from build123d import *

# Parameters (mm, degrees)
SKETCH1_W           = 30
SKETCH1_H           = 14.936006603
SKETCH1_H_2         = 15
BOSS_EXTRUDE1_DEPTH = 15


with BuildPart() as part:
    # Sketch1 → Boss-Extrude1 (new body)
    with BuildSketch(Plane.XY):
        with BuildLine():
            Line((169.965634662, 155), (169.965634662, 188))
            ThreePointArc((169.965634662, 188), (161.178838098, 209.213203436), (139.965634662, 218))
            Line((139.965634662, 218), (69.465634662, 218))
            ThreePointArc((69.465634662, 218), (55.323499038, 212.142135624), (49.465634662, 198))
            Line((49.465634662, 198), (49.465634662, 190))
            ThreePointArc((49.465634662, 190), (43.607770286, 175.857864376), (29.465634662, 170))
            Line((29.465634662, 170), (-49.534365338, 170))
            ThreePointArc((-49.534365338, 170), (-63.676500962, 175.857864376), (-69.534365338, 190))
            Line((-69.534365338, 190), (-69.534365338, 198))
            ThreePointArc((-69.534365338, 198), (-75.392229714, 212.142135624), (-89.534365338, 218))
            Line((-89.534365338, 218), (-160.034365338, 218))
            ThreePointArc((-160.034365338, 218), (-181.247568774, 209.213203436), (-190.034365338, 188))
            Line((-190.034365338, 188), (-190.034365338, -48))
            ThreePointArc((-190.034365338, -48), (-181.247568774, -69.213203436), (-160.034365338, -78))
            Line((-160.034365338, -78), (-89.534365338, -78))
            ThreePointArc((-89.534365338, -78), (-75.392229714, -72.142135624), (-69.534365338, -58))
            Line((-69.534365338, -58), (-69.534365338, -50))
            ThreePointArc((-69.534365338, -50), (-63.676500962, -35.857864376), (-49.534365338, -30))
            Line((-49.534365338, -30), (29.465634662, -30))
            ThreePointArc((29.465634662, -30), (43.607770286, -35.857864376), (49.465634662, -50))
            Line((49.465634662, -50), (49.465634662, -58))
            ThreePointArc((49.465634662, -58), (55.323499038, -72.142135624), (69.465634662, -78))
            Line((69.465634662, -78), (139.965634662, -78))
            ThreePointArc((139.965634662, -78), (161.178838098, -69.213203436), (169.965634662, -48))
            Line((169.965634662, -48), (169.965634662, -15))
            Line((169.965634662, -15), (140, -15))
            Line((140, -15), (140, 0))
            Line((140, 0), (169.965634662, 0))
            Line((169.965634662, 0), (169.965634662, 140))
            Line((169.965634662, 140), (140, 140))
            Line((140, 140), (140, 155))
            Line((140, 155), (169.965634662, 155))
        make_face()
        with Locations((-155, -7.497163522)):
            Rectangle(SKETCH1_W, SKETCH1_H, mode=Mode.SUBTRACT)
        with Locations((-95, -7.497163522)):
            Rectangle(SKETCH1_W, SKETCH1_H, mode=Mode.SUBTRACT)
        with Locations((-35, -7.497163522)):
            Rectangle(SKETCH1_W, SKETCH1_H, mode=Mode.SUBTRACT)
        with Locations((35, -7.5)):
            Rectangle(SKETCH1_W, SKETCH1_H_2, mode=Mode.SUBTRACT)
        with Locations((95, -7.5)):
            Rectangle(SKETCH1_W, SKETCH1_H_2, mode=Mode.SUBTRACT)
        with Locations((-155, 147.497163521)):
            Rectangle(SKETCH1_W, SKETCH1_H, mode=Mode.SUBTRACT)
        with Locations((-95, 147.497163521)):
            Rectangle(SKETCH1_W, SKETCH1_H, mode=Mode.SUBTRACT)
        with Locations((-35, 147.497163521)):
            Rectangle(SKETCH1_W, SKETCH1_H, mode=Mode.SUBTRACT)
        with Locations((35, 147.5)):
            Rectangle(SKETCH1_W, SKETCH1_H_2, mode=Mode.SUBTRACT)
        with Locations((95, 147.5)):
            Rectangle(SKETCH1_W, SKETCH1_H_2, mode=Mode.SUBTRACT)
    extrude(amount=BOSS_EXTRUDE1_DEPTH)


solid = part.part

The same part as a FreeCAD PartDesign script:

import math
import FreeCAD as App
import Part
import Sketcher
from FreeCAD import Vector
Q = App.Units.Quantity


def add_polygon(sketch, points):
    """Adds a closed chain of lines whose ends are joined by coincident constraints."""
    first, n = sketch.GeometryCount, len(points)
    for a, b in zip(points, points[1:] + points[:1]):
        sketch.addGeometry(Part.LineSegment(App.Vector(*a, 0), App.Vector(*b, 0)), False)
    for i in range(n):
        sketch.addConstraint(Sketcher.Constraint("Coincident", first + i, 2, first + (i + 1) % n, 1))

doc = App.newDocument("Part")
body = doc.addObject("PartDesign::Body", "Body")

# Sketch on XY plane
sketch1 = body.newObject("Sketcher::SketchObject", "Sketch")
sketch1.AttachmentSupport = (doc.getObject("XY_Plane"), [""])
sketch1.MapMode = "FlatFace"
sketch1.addGeometry(Part.LineSegment(Vector(170, 155, 0), Vector(170, 188, 0)), False)  # 0
sketch1.addGeometry(Part.ArcOfCircle(Part.Circle(Vector(140, 188, 0), Vector(0, 0, 1), 30), math.radians(0), math.radians(90)), False)  # 1
sketch1.addGeometry(Part.LineSegment(Vector(140, 218, 0), Vector(69, 218, 0)), False)  # 2
sketch1.addGeometry(Part.ArcOfCircle(Part.Circle(Vector(69, 198, 0), Vector(0, 0, 1), 20), math.radians(90), math.radians(180)), False)  # 3
sketch1.addGeometry(Part.LineSegment(Vector(49, 198, 0), Vector(49, 190, 0)), False)  # 4
sketch1.addGeometry(Part.ArcOfCircle(Part.Circle(Vector(29, 190, 0), Vector(0, 0, 1), 20), math.radians(-90), math.radians(0)), False)  # 5
sketch1.addGeometry(Part.LineSegment(Vector(29, 170, 0), Vector(-50, 170, 0)), False)  # 6
sketch1.addGeometry(Part.ArcOfCircle(Part.Circle(Vector(-50, 190, 0), Vector(0, 0, 1), 20), math.radians(180), math.radians(270)), False)  # 7
sketch1.addGeometry(Part.LineSegment(Vector(-70, 190, 0), Vector(-70, 198, 0)), False)  # 8
sketch1.addGeometry(Part.ArcOfCircle(Part.Circle(Vector(-90, 198, 0), Vector(0, 0, 1), 20), math.radians(0), math.radians(90)), False)  # 9
sketch1.addGeometry(Part.LineSegment(Vector(-90, 218, 0), Vector(-160, 218, 0)), False)  # 10
sketch1.addGeometry(Part.ArcOfCircle(Part.Circle(Vector(-160, 188, 0), Vector(0, 0, 1), 30), math.radians(90), math.radians(180)), False)  # 11
sketch1.addGeometry(Part.LineSegment(Vector(-190, 188, 0), Vector(-190, -48, 0)), False)  # 12
sketch1.addGeometry(Part.ArcOfCircle(Part.Circle(Vector(-160, -48, 0), Vector(0, 0, 1), 30), math.radians(180), math.radians(270)), False)  # 13
sketch1.addGeometry(Part.LineSegment(Vector(-160, -78, 0), Vector(-90, -78, 0)), False)  # 14
sketch1.addGeometry(Part.ArcOfCircle(Part.Circle(Vector(-90, -58, 0), Vector(0, 0, 1), 20), math.radians(-90), math.radians(0)), False)  # 15
sketch1.addGeometry(Part.LineSegment(Vector(-70, -58, 0), Vector(-70, -50, 0)), False)  # 16
sketch1.addGeometry(Part.ArcOfCircle(Part.Circle(Vector(-50, -50, 0), Vector(0, 0, 1), 20), math.radians(90), math.radians(180)), False)  # 17
sketch1.addGeometry(Part.LineSegment(Vector(-50, -30, 0), Vector(29, -30, 0)), False)  # 18
sketch1.addGeometry(Part.ArcOfCircle(Part.Circle(Vector(29, -50, 0), Vector(0, 0, 1), 20), math.radians(0), math.radians(90)), False)  # 19
sketch1.addGeometry(Part.LineSegment(Vector(49, -50, 0), Vector(49, -58, 0)), False)  # 20
sketch1.addGeometry(Part.ArcOfCircle(Part.Circle(Vector(69, -58, 0), Vector(0, 0, 1), 20), math.radians(180), math.radians(270)), False)  # 21
sketch1.addGeometry(Part.LineSegment(Vector(69, -78, 0), Vector(140, -78, 0)), False)  # 22
sketch1.addGeometry(Part.ArcOfCircle(Part.Circle(Vector(140, -48, 0), Vector(0, 0, 1), 30), math.radians(-90), math.radians(0)), False)  # 23
sketch1.addGeometry(Part.LineSegment(Vector(170, -48, 0), Vector(170, -15, 0)), False)  # 24
sketch1.addGeometry(Part.LineSegment(Vector(170, -15, 0), Vector(140, -15, 0)), False)  # 25
sketch1.addGeometry(Part.LineSegment(Vector(140, -15, 0), Vector(140, 0, 0)), False)  # 26
sketch1.addGeometry(Part.LineSegment(Vector(140, 0, 0), Vector(170, 0, 0)), False)  # 27
sketch1.addGeometry(Part.LineSegment(Vector(170, 0, 0), Vector(170, 140, 0)), False)  # 28
sketch1.addGeometry(Part.LineSegment(Vector(170, 140, 0), Vector(140, 140, 0)), False)  # 29
sketch1.addGeometry(Part.LineSegment(Vector(140, 140, 0), Vector(140, 155, 0)), False)  # 30
sketch1.addGeometry(Part.LineSegment(Vector(140, 155, 0), Vector(170, 155, 0)), False)  # 31
add_polygon(sketch1, [(-140, -15), (-170, -15), (-170, 0), (-140, 0)])  # lines 32-35
add_polygon(sketch1, [(-80, -15), (-110, -15), (-110, 0), (-80, 0)])  # lines 36-39
add_polygon(sketch1, [(-20, -15), (-50, -15), (-50, 0), (-20, 0)])  # lines 40-43
add_polygon(sketch1, [(50, -15), (20, -15), (20, 0), (50, 0)])  # lines 44-47
add_polygon(sketch1, [(110, -15), (80, -15), (80, 0), (110, 0)])  # lines 48-51
add_polygon(sketch1, [(-140, 140), (-170, 140), (-170, 155), (-140, 155)])  # lines 52-55
add_polygon(sketch1, [(-80, 140), (-110, 140), (-110, 155), (-80, 155)])  # lines 56-59
add_polygon(sketch1, [(-20, 140), (-50, 140), (-50, 155), (-20, 155)])  # lines 60-63
add_polygon(sketch1, [(50, 140), (20, 140), (20, 155), (50, 155)])  # lines 64-67
add_polygon(sketch1, [(110, 140), (80, 140), (80, 155), (110, 155)])  # lines 68-71
sketch1.addConstraint(Sketcher.Constraint("Tangent", 0, 2, 1, 1))
sketch1.addConstraint(Sketcher.Constraint("Tangent", 1, 2, 2, 1))
sketch1.addConstraint(Sketcher.Constraint("Tangent", 2, 2, 3, 1))
sketch1.addConstraint(Sketcher.Constraint("Tangent", 3, 2, 4, 1))
sketch1.addConstraint(Sketcher.Constraint("Tangent", 4, 2, 5, 2))
sketch1.addConstraint(Sketcher.Constraint("Tangent", 5, 1, 6, 1))
sketch1.addConstraint(Sketcher.Constraint("Tangent", 6, 2, 7, 2))
sketch1.addConstraint(Sketcher.Constraint("Tangent", 7, 1, 8, 1))
sketch1.addConstraint(Sketcher.Constraint("Tangent", 8, 2, 9, 1))
sketch1.addConstraint(Sketcher.Constraint("Tangent", 9, 2, 10, 1))
sketch1.addConstraint(Sketcher.Constraint("Tangent", 10, 2, 11, 1))
sketch1.addConstraint(Sketcher.Constraint("Tangent", 11, 2, 12, 1))
sketch1.addConstraint(Sketcher.Constraint("Tangent", 12, 2, 13, 1))
sketch1.addConstraint(Sketcher.Constraint("Tangent", 13, 2, 14, 1))
sketch1.addConstraint(Sketcher.Constraint("Tangent", 14, 2, 15, 1))
sketch1.addConstraint(Sketcher.Constraint("Tangent", 15, 2, 16, 1))
sketch1.addConstraint(Sketcher.Constraint("Tangent", 16, 2, 17, 2))
sketch1.addConstraint(Sketcher.Constraint("Tangent", 17, 1, 18, 1))
sketch1.addConstraint(Sketcher.Constraint("Tangent", 18, 2, 19, 2))
sketch1.addConstraint(Sketcher.Constraint("Tangent", 19, 1, 20, 1))
sketch1.addConstraint(Sketcher.Constraint("Tangent", 20, 2, 21, 1))
sketch1.addConstraint(Sketcher.Constraint("Tangent", 21, 2, 22, 1))
sketch1.addConstraint(Sketcher.Constraint("Tangent", 22, 2, 23, 1))
sketch1.addConstraint(Sketcher.Constraint("Tangent", 23, 2, 24, 1))
sketch1.addConstraint(Sketcher.Constraint("Coincident", 24, 2, 25, 1))
sketch1.addConstraint(Sketcher.Constraint("Coincident", 25, 2, 26, 1))
sketch1.addConstraint(Sketcher.Constraint("Coincident", 26, 2, 27, 1))
sketch1.addConstraint(Sketcher.Constraint("Coincident", 27, 2, 28, 1))
sketch1.addConstraint(Sketcher.Constraint("Coincident", 28, 2, 29, 1))
sketch1.addConstraint(Sketcher.Constraint("Coincident", 29, 2, 30, 1))
sketch1.addConstraint(Sketcher.Constraint("Coincident", 30, 2, 31, 1))
sketch1.addConstraint(Sketcher.Constraint("Coincident", 31, 2, 0, 1))
sketch1.addConstraint(Sketcher.Constraint("Vertical", 0))
sketch1.addConstraint(Sketcher.Constraint("Horizontal", 2))
sketch1.addConstraint(Sketcher.Constraint("Vertical", 4))
sketch1.addConstraint(Sketcher.Constraint("Horizontal", 6))
sketch1.addConstraint(Sketcher.Constraint("Vertical", 8))
sketch1.addConstraint(Sketcher.Constraint("Horizontal", 10))
sketch1.addConstraint(Sketcher.Constraint("Vertical", 12))
sketch1.addConstraint(Sketcher.Constraint("Horizontal", 14))
sketch1.addConstraint(Sketcher.Constraint("Vertical", 16))
sketch1.addConstraint(Sketcher.Constraint("Horizontal", 18))
sketch1.addConstraint(Sketcher.Constraint("Vertical", 20))
sketch1.addConstraint(Sketcher.Constraint("Horizontal", 22))
sketch1.addConstraint(Sketcher.Constraint("Vertical", 24))
sketch1.addConstraint(Sketcher.Constraint("Horizontal", 25))
sketch1.addConstraint(Sketcher.Constraint("Vertical", 26))
sketch1.addConstraint(Sketcher.Constraint("Horizontal", 27))
sketch1.addConstraint(Sketcher.Constraint("Vertical", 28))
sketch1.addConstraint(Sketcher.Constraint("Horizontal", 29))
sketch1.addConstraint(Sketcher.Constraint("Vertical", 30))
sketch1.addConstraint(Sketcher.Constraint("Horizontal", 31))
sketch1.addConstraint(Sketcher.Constraint("Horizontal", 32))
sketch1.addConstraint(Sketcher.Constraint("Vertical", 33))
sketch1.addConstraint(Sketcher.Constraint("Horizontal", 34))
sketch1.addConstraint(Sketcher.Constraint("Vertical", 35))
sketch1.addConstraint(Sketcher.Constraint("Horizontal", 36))
sketch1.addConstraint(Sketcher.Constraint("Vertical", 37))
sketch1.addConstraint(Sketcher.Constraint("Horizontal", 38))
sketch1.addConstraint(Sketcher.Constraint("Vertical", 39))
sketch1.addConstraint(Sketcher.Constraint("Horizontal", 40))
sketch1.addConstraint(Sketcher.Constraint("Vertical", 41))
sketch1.addConstraint(Sketcher.Constraint("Horizontal", 42))
sketch1.addConstraint(Sketcher.Constraint("Vertical", 43))
sketch1.addConstraint(Sketcher.Constraint("Horizontal", 44))
sketch1.addConstraint(Sketcher.Constraint("Vertical", 45))
sketch1.addConstraint(Sketcher.Constraint("Horizontal", 46))
sketch1.addConstraint(Sketcher.Constraint("Vertical", 47))
sketch1.addConstraint(Sketcher.Constraint("Horizontal", 48))
sketch1.addConstraint(Sketcher.Constraint("Vertical", 49))
sketch1.addConstraint(Sketcher.Constraint("Horizontal", 50))
sketch1.addConstraint(Sketcher.Constraint("Vertical", 51))
sketch1.addConstraint(Sketcher.Constraint("Horizontal", 52))
sketch1.addConstraint(Sketcher.Constraint("Vertical", 53))
sketch1.addConstraint(Sketcher.Constraint("Horizontal", 54))
sketch1.addConstraint(Sketcher.Constraint("Vertical", 55))
sketch1.addConstraint(Sketcher.Constraint("Horizontal", 56))
sketch1.addConstraint(Sketcher.Constraint("Vertical", 57))
sketch1.addConstraint(Sketcher.Constraint("Horizontal", 58))
sketch1.addConstraint(Sketcher.Constraint("Vertical", 59))
sketch1.addConstraint(Sketcher.Constraint("Horizontal", 60))
sketch1.addConstraint(Sketcher.Constraint("Vertical", 61))
sketch1.addConstraint(Sketcher.Constraint("Horizontal", 62))
sketch1.addConstraint(Sketcher.Constraint("Vertical", 63))
sketch1.addConstraint(Sketcher.Constraint("Horizontal", 64))
sketch1.addConstraint(Sketcher.Constraint("Vertical", 65))
sketch1.addConstraint(Sketcher.Constraint("Horizontal", 66))
sketch1.addConstraint(Sketcher.Constraint("Vertical", 67))
sketch1.addConstraint(Sketcher.Constraint("Horizontal", 68))
sketch1.addConstraint(Sketcher.Constraint("Vertical", 69))
sketch1.addConstraint(Sketcher.Constraint("Horizontal", 70))
sketch1.addConstraint(Sketcher.Constraint("Vertical", 71))
sketch1.addConstraint(Sketcher.Constraint("Equal", 3, 5))
sketch1.addConstraint(Sketcher.Constraint("Equal", 5, 7))
sketch1.addConstraint(Sketcher.Constraint("Equal", 7, 9))
sketch1.addConstraint(Sketcher.Constraint("Equal", 1, 11))
sketch1.addConstraint(Sketcher.Constraint("Equal", 11, 13))
sketch1.addConstraint(Sketcher.Constraint("Equal", 9, 15))
sketch1.addConstraint(Sketcher.Constraint("Equal", 15, 17))
sketch1.addConstraint(Sketcher.Constraint("Equal", 17, 19))
sketch1.addConstraint(Sketcher.Constraint("Equal", 19, 21))
sketch1.addConstraint(Sketcher.Constraint("Equal", 13, 23))
sketch1.addConstraint(Sketcher.Constraint("PointOnObject", 26, 2, -1))
sketch1.addConstraint(Sketcher.Constraint("PointOnObject", 45, 2, -1))
sketch1.addConstraint(Sketcher.Constraint("PointOnObject", 49, 2, -1))
sketch1.addConstraint(Sketcher.Constraint("Horizontal", 3, 3, 9, 3))
sketch1.addConstraint(Sketcher.Constraint("Horizontal", 15, 3, 21, 3))
sketch1.addConstraint(Sketcher.Constraint("Horizontal", 35, 2, 36, 2))
sketch1.addConstraint(Sketcher.Constraint("Horizontal", 34, 2, 37, 2))
sketch1.addConstraint(Sketcher.Constraint("Horizontal", 39, 2, 40, 2))
sketch1.addConstraint(Sketcher.Constraint("Horizontal", 38, 2, 41, 2))
sketch1.addConstraint(Sketcher.Constraint("Horizontal", 25, 2, 44, 2))
sketch1.addConstraint(Sketcher.Constraint("Horizontal", 47, 2, 48, 2))
sketch1.addConstraint(Sketcher.Constraint("Horizontal", 55, 2, 56, 2))
sketch1.addConstraint(Sketcher.Constraint("Horizontal", 54, 2, 57, 2))
sketch1.addConstraint(Sketcher.Constraint("Horizontal", 59, 2, 60, 2))
sketch1.addConstraint(Sketcher.Constraint("Horizontal", 58, 2, 61, 2))
sketch1.addConstraint(Sketcher.Constraint("Horizontal", 29, 2, 64, 2))
sketch1.addConstraint(Sketcher.Constraint("Horizontal", 31, 2, 65, 2))
sketch1.addConstraint(Sketcher.Constraint("Horizontal", 67, 2, 68, 2))
sketch1.addConstraint(Sketcher.Constraint("Horizontal", 66, 2, 69, 2))
sketch1.addConstraint(Sketcher.Constraint("Vertical", 9, 3, 15, 3))
sketch1.addConstraint(Sketcher.Constraint("Vertical", 5, 3, 19, 3))
sketch1.addConstraint(Sketcher.Constraint("Vertical", 1, 3, 23, 3))
sketch1.addConstraint(Sketcher.Constraint("Vertical", 24, 2, 27, 2))
sketch1.addConstraint(Sketcher.Constraint("Vertical", 26, 2, 29, 2))
sketch1.addConstraint(Sketcher.Constraint("Vertical", 33, 2, 52, 2))
sketch1.addConstraint(Sketcher.Constraint("Vertical", 35, 2, 54, 2))
sketch1.addConstraint(Sketcher.Constraint("Vertical", 37, 2, 56, 2))
sketch1.addConstraint(Sketcher.Constraint("Vertical", 39, 2, 58, 2))
sketch1.addConstraint(Sketcher.Constraint("Vertical", 41, 2, 60, 2))
sketch1.addConstraint(Sketcher.Constraint("Vertical", 43, 2, 62, 2))
sketch1.addConstraint(Sketcher.Constraint("Vertical", 45, 2, 64, 2))
sketch1.addConstraint(Sketcher.Constraint("Vertical", 47, 2, 66, 2))
sketch1.addConstraint(Sketcher.Constraint("Vertical", 49, 2, 68, 2))
sketch1.addConstraint(Sketcher.Constraint("Vertical", 51, 2, 70, 2))
sketch1.addConstraint(Sketcher.Constraint("Equal", 2, 10))
sketch1.addConstraint(Sketcher.Constraint("Equal", 34, 36))
sketch1.addConstraint(Sketcher.Constraint("Equal", 38, 40))
sketch1.addConstraint(Sketcher.Constraint("Equal", 42, 44))
sketch1.addConstraint(Sketcher.Constraint("Equal", 46, 48))
sketch1.addConstraint(Sketcher.Constraint("Equal", 8, 16))
sketch1.addConstraint(Sketcher.Constraint("Equal", 0, 24))
sketch1.addConstraint(Sketcher.Constraint("Equal", 26, 30))
sketch1.addConstraint(Sketcher.Constraint("Equal", 43, 53))
sketch1.addConstraint(Sketcher.Constraint("Radius", 1, Q("30 mm")))
sketch1.addConstraint(Sketcher.Constraint("Radius", 3, Q("20 mm")))
sketch1.addConstraint(Sketcher.Constraint("DistanceX", 6, 2, 6, 1, Q("79 mm")))
sketch1.addConstraint(Sketcher.Constraint("DistanceX", 32, 2, 32, 1, Q("30 mm")))
sketch1.addConstraint(Sketcher.Constraint("DistanceY", 0, 1, 0, 2, Q("33 mm")))
sketch1.addConstraint(Sketcher.Constraint("DistanceY", 4, 2, 4, 1, Q("8 mm")))
sketch1.addConstraint(Sketcher.Constraint("DistanceY", 12, 2, 12, 1, Q("236 mm")))
sketch1.addConstraint(Sketcher.Constraint("DistanceY", 26, 1, 26, 2, Q("15 mm")))
sketch1.addConstraint(Sketcher.Constraint("DistanceX", 2, 2, 2, 1, Q("70.5 mm")))
sketch1.addConstraint(Sketcher.Constraint("DistanceX", -1, 1, 25, 2, Q("140 mm")))
sketch1.addConstraint(Sketcher.Constraint("DistanceX", 32, 2, -1, 1, Q("170 mm")))
sketch1.addConstraint(Sketcher.Constraint("DistanceX", 36, 2, -1, 1, Q("110 mm")))
sketch1.addConstraint(Sketcher.Constraint("DistanceX", 40, 2, -1, 1, Q("50 mm")))
sketch1.addConstraint(Sketcher.Constraint("DistanceX", -1, 1, 44, 2, Q("20 mm")))
sketch1.addConstraint(Sketcher.Constraint("DistanceX", -1, 1, 48, 2, Q("80 mm")))
sketch1.addConstraint(Sketcher.Constraint("DistanceX", 25, 2, 25, 1, Q("29.965635 mm")))
sketch1.addConstraint(Sketcher.Constraint("DistanceY", 33, 1, 33, 2, Q("14.936007 mm")))
sketch1.addConstraint(Sketcher.Constraint("DistanceY", 33, 2, -1, 1, Q("0.02916 mm")))
sketch1.addConstraint(Sketcher.Constraint("DistanceY", -1, 1, 52, 2, Q("140.02916 mm")))
pad1 = body.newObject("PartDesign::Pad", "Pad")
pad1.Profile = sketch1
pad1.Length = 15

doc.recompute()
